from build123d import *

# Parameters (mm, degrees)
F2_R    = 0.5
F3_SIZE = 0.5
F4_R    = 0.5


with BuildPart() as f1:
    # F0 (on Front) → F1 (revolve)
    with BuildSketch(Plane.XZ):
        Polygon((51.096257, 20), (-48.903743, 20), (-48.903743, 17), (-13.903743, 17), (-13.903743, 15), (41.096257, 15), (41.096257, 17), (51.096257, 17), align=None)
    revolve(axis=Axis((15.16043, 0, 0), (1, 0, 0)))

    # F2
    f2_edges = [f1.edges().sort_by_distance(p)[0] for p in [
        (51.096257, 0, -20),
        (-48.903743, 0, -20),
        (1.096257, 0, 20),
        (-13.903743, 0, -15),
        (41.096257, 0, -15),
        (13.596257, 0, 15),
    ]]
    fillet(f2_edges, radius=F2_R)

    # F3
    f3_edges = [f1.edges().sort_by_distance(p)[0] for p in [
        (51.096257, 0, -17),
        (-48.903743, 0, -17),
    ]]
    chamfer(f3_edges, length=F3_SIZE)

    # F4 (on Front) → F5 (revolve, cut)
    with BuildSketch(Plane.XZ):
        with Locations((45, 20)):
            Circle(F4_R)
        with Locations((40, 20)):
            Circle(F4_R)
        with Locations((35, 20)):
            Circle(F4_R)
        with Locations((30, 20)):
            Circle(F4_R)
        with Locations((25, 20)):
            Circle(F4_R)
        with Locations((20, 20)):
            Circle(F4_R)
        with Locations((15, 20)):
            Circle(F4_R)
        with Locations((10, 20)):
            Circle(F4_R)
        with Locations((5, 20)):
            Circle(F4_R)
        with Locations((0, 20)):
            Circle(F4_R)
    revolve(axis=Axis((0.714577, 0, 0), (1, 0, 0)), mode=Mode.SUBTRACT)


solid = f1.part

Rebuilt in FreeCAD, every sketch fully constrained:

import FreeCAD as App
import Part
import Sketcher

V = App.Vector


def edges_at(feature, points):
    """Names of the edges that pass closest to the given points."""
    edges = feature.Shape.Edges
    near = lambda p: min(range(len(edges)), key=lambda i: edges[i].distToShape(Part.Vertex(*p))[0])
    return sorted({f"Edge{near(p) + 1}" for p in points})

doc = App.newDocument("Part")
body = doc.addObject("PartDesign::Body", "Body")

# Sketch on XZ plane
sketch1 = doc.addObject("Sketcher::SketchObject", "Sketch")
body.addObject(sketch1)
sketch1.AttachmentSupport = (doc.XZ_Plane, [""])
sketch1.MapMode = "FlatFace"
sketch1.addGeometry(Part.LineSegment(V(51.1, 20, 0), V(-48.9, 20, 0)), False)
sketch1.addGeometry(Part.LineSegment(V(-48.9, 20, 0), V(-48.9, 17, 0)), False)
sketch1.addGeometry(Part.LineSegment(V(-48.9, 17, 0), V(-13.9, 17, 0)), False)
sketch1.addGeometry(Part.LineSegment(V(-13.9, 17, 0), V(-13.9, 15, 0)), False)
sketch1.addGeometry(Part.LineSegment(V(-13.9, 15, 0), V(41.1, 15, 0)), False)
sketch1.addGeometry(Part.LineSegment(V(41.1, 15, 0), V(41.1, 17, 0)), False)
sketch1.addGeometry(Part.LineSegment(V(41.1, 17, 0), V(51.1, 17, 0)), False)
sketch1.addGeometry(Part.LineSegment(V(51.1, 17, 0), V(51.1, 20, 0)), False)
sketch1.addConstraint(Sketcher.Constraint("Coincident", 0, 2, 1, 1))
sketch1.addConstraint(Sketcher.Constraint("Coincident", 1, 2, 2, 1))
sketch1.addConstraint(Sketcher.Constraint("Coincident", 2, 2, 3, 1))
sketch1.addConstraint(Sketcher.Constraint("Coincident", 3, 2, 4, 1))
sketch1.addConstraint(Sketcher.Constraint("Coincident", 4, 2, 5, 1))
sketch1.addConstraint(Sketcher.Constraint("Coincident", 5, 2, 6, 1))
sketch1.addConstraint(Sketcher.Constraint("Coincident", 6, 2, 7, 1))
sketch1.addConstraint(Sketcher.Constraint("Coincident", 7, 2, 0, 1))
sketch1.addConstraint(Sketcher.Constraint("Horizontal", 0))
sketch1.addConstraint(Sketcher.Constraint("Vertical", 1))
sketch1.addConstraint(Sketcher.Constraint("Horizontal", 2))
sketch1.addConstraint(Sketcher.Constraint("Vertical", 3))
sketch1.addConstraint(Sketcher.Constraint("Horizontal", 4))
sketch1.addConstraint(Sketcher.Constraint("Vertical", 5))
sketch1.addConstraint(Sketcher.Constraint("Horizontal", 6))
sketch1.addConstraint(Sketcher.Constraint("Vertical", 7))
sketch1.addConstraint(Sketcher.Constraint("Horizontal", 2, 2, 5, 2))
sketch1.addConstraint(Sketcher.Constraint("DistanceX", 0, 2, 0, 1, 100.0))
sketch1.addConstraint(Sketcher.Constraint("DistanceX", 2, 1, 2, 2, 35.0))
sketch1.addConstraint(Sketcher.Constraint("DistanceX", 4, 1, 4, 2, 55.0))
sketch1.addConstraint(Sketcher.Constraint("DistanceY", 1, 2, 1, 1, 3.0))
sketch1.addConstraint(Sketcher.Constraint("DistanceY", 3, 2, 3, 1, 2.0))
sketch1.addConstraint(Sketcher.Constraint("DistanceY", -1, 1, 0, 2, 20.0))
sketch1.addConstraint(Sketcher.Constraint("DistanceX", 0, 2, -1, 1, 48.903743))
revolution = doc.addObject("PartDesign::Revolution", "Revolution")
body.addObject(revolution)
revolution.Profile = sketch1
revolution.ReferenceAxis = (sketch1, ["H_Axis"])
revolution.Angle = 360
doc.recompute()

fillet = doc.addObject("PartDesign::Fillet", "Fillet")
body.addObject(fillet)
fillet.Base = (revolution, edges_at(revolution, [
    (51.096, 0, -20),
    (-48.904, 0, -20),
    (1.096, 0, 20),
    (-13.904, 0, -15),
    (41.096, 0, -15),
    (13.596, 0, 15),
]))
fillet.Radius = 0.5
doc.recompute()

chamfer = doc.addObject("PartDesign::Chamfer", "Chamfer")
body.addObject(chamfer)
chamfer.Base = (fillet, edges_at(fillet, [(51.096, 0, -17), (-48.904, 0, -17)]))
chamfer.Size = 0.5

# Sketch on XZ plane
sketch2 = doc.addObject("Sketcher::SketchObject", "Sketch001")
body.addObject(sketch2)
sketch2.AttachmentSupport = (doc.XZ_Plane, [""])
sketch2.MapMode = "FlatFace"
sketch2.addGeometry(Part.Circle(V(45, 20, 0), V(0, 0, 1), 0.5), False)
sketch2.addGeometry(Part.Circle(V(40, 20, 0), V(0, 0, 1), 0.5), False)
sketch2.addGeometry(Part.Circle(V(35, 20, 0), V(0, 0, 1), 0.5), False)
sketch2.addGeometry(Part.Circle(V(30, 20, 0), V(0, 0, 1), 0.5), False)
sketch2.addGeometry(Part.Circle(V(25, 20, 0), V(0, 0, 1), 0.5), False)
sketch2.addGeometry(Part.Circle(V(20, 20, 0), V(0, 0, 1), 0.5), False)
sketch2.addGeometry(Part.Circle(V(15, 20, 0), V(0, 0, 1), 0.5), False)
sketch2.addGeometry(Part.Circle(V(10, 20, 0), V(0, 0, 1), 0.5), False)
sketch2.addGeometry(Part.Circle(V(5, 20, 0), V(0, 0, 1), 0.5), False)
sketch2.addGeometry(Part.Circle(V(0, 20, 0), V(0, 0, 1), 0.5), False)
sketch2.addConstraint(Sketcher.Constraint("Equal", 0, 1))
sketch2.addConstraint(Sketcher.Constraint("Equal", 1, 2))
sketch2.addConstraint(Sketcher.Constraint("Equal", 2, 3))
sketch2.addConstraint(Sketcher.Constraint("Equal", 3, 4))
sketch2.addConstraint(Sketcher.Constraint("Equal", 4, 5))
sketch2.addConstraint(Sketcher.Constraint("Equal", 5, 6))
sketch2.addConstraint(Sketcher.Constraint("Equal", 6, 7))
sketch2.addConstraint(Sketcher.Constraint("Equal", 7, 8))
sketch2.addConstraint(Sketcher.Constraint("Equal", 8, 9))
sketch2.addConstraint(Sketcher.Constraint("PointOnObject", 9, 3, -2))
sketch2.addConstraint(Sketcher.Constraint("Horizontal", 0, 3, 1, 3))
sketch2.addConstraint(Sketcher.Constraint("Horizontal", 1, 3, 2, 3))
sketch2.addConstraint(Sketcher.Constraint("Horizontal", 2, 3, 3, 3))
sketch2.addConstraint(Sketcher.Constraint("Horizontal", 3, 3, 4, 3))
sketch2.addConstraint(Sketcher.Constraint("Horizontal", 4, 3, 5, 3))
sketch2.addConstraint(Sketcher.Constraint("Horizontal", 5, 3, 6, 3))
sketch2.addConstraint(Sketcher.Constraint("Horizontal", 6, 3, 7, 3))
sketch2.addConstraint(Sketcher.Constraint("Horizontal", 7, 3, 8, 3))
sketch2.addConstraint(Sketcher.Constraint("Horizontal", 8, 3, 9, 3))
sketch2.addConstraint(Sketcher.Constraint("Diameter", 0, 1.0))
sketch2.addConstraint(Sketcher.Constraint("DistanceX", -1, 1, 0, 3, 45.0))
sketch2.addConstraint(Sketcher.Constraint("DistanceY", -1, 1, 0, 3, 20.0))
sketch2.addConstraint(Sketcher.Constraint("DistanceX", -1, 1, 1, 3, 40.0))
sketch2.addConstraint(Sketcher.Constraint("DistanceX", -1, 1, 2, 3, 35.0))
sketch2.addConstraint(Sketcher.Constraint("DistanceX", -1, 1, 3, 3, 30.0))
sketch2.addConstraint(Sketcher.Constraint("DistanceX", -1, 1, 4, 3, 25.0))
sketch2.addConstraint(Sketcher.Constraint("DistanceX", -1, 1, 5, 3, 20.0))
sketch2.addConstraint(Sketcher.Constraint("DistanceX", -1, 1, 6, 3, 15.0))
sketch2.addConstraint(Sketcher.Constraint("DistanceX", -1, 1, 7, 3, 10.0))
sketch2.addConstraint(Sketcher.Constraint("DistanceX", -1, 1, 8, 3, 5.0))
groove = doc.addObject("PartDesign::Groove", "Groove")
body.addObject(groove)
groove.Profile = sketch2
groove.ReferenceAxis = (sketch2, ["H_Axis"])
groove.Angle = 360

doc.recompute()
